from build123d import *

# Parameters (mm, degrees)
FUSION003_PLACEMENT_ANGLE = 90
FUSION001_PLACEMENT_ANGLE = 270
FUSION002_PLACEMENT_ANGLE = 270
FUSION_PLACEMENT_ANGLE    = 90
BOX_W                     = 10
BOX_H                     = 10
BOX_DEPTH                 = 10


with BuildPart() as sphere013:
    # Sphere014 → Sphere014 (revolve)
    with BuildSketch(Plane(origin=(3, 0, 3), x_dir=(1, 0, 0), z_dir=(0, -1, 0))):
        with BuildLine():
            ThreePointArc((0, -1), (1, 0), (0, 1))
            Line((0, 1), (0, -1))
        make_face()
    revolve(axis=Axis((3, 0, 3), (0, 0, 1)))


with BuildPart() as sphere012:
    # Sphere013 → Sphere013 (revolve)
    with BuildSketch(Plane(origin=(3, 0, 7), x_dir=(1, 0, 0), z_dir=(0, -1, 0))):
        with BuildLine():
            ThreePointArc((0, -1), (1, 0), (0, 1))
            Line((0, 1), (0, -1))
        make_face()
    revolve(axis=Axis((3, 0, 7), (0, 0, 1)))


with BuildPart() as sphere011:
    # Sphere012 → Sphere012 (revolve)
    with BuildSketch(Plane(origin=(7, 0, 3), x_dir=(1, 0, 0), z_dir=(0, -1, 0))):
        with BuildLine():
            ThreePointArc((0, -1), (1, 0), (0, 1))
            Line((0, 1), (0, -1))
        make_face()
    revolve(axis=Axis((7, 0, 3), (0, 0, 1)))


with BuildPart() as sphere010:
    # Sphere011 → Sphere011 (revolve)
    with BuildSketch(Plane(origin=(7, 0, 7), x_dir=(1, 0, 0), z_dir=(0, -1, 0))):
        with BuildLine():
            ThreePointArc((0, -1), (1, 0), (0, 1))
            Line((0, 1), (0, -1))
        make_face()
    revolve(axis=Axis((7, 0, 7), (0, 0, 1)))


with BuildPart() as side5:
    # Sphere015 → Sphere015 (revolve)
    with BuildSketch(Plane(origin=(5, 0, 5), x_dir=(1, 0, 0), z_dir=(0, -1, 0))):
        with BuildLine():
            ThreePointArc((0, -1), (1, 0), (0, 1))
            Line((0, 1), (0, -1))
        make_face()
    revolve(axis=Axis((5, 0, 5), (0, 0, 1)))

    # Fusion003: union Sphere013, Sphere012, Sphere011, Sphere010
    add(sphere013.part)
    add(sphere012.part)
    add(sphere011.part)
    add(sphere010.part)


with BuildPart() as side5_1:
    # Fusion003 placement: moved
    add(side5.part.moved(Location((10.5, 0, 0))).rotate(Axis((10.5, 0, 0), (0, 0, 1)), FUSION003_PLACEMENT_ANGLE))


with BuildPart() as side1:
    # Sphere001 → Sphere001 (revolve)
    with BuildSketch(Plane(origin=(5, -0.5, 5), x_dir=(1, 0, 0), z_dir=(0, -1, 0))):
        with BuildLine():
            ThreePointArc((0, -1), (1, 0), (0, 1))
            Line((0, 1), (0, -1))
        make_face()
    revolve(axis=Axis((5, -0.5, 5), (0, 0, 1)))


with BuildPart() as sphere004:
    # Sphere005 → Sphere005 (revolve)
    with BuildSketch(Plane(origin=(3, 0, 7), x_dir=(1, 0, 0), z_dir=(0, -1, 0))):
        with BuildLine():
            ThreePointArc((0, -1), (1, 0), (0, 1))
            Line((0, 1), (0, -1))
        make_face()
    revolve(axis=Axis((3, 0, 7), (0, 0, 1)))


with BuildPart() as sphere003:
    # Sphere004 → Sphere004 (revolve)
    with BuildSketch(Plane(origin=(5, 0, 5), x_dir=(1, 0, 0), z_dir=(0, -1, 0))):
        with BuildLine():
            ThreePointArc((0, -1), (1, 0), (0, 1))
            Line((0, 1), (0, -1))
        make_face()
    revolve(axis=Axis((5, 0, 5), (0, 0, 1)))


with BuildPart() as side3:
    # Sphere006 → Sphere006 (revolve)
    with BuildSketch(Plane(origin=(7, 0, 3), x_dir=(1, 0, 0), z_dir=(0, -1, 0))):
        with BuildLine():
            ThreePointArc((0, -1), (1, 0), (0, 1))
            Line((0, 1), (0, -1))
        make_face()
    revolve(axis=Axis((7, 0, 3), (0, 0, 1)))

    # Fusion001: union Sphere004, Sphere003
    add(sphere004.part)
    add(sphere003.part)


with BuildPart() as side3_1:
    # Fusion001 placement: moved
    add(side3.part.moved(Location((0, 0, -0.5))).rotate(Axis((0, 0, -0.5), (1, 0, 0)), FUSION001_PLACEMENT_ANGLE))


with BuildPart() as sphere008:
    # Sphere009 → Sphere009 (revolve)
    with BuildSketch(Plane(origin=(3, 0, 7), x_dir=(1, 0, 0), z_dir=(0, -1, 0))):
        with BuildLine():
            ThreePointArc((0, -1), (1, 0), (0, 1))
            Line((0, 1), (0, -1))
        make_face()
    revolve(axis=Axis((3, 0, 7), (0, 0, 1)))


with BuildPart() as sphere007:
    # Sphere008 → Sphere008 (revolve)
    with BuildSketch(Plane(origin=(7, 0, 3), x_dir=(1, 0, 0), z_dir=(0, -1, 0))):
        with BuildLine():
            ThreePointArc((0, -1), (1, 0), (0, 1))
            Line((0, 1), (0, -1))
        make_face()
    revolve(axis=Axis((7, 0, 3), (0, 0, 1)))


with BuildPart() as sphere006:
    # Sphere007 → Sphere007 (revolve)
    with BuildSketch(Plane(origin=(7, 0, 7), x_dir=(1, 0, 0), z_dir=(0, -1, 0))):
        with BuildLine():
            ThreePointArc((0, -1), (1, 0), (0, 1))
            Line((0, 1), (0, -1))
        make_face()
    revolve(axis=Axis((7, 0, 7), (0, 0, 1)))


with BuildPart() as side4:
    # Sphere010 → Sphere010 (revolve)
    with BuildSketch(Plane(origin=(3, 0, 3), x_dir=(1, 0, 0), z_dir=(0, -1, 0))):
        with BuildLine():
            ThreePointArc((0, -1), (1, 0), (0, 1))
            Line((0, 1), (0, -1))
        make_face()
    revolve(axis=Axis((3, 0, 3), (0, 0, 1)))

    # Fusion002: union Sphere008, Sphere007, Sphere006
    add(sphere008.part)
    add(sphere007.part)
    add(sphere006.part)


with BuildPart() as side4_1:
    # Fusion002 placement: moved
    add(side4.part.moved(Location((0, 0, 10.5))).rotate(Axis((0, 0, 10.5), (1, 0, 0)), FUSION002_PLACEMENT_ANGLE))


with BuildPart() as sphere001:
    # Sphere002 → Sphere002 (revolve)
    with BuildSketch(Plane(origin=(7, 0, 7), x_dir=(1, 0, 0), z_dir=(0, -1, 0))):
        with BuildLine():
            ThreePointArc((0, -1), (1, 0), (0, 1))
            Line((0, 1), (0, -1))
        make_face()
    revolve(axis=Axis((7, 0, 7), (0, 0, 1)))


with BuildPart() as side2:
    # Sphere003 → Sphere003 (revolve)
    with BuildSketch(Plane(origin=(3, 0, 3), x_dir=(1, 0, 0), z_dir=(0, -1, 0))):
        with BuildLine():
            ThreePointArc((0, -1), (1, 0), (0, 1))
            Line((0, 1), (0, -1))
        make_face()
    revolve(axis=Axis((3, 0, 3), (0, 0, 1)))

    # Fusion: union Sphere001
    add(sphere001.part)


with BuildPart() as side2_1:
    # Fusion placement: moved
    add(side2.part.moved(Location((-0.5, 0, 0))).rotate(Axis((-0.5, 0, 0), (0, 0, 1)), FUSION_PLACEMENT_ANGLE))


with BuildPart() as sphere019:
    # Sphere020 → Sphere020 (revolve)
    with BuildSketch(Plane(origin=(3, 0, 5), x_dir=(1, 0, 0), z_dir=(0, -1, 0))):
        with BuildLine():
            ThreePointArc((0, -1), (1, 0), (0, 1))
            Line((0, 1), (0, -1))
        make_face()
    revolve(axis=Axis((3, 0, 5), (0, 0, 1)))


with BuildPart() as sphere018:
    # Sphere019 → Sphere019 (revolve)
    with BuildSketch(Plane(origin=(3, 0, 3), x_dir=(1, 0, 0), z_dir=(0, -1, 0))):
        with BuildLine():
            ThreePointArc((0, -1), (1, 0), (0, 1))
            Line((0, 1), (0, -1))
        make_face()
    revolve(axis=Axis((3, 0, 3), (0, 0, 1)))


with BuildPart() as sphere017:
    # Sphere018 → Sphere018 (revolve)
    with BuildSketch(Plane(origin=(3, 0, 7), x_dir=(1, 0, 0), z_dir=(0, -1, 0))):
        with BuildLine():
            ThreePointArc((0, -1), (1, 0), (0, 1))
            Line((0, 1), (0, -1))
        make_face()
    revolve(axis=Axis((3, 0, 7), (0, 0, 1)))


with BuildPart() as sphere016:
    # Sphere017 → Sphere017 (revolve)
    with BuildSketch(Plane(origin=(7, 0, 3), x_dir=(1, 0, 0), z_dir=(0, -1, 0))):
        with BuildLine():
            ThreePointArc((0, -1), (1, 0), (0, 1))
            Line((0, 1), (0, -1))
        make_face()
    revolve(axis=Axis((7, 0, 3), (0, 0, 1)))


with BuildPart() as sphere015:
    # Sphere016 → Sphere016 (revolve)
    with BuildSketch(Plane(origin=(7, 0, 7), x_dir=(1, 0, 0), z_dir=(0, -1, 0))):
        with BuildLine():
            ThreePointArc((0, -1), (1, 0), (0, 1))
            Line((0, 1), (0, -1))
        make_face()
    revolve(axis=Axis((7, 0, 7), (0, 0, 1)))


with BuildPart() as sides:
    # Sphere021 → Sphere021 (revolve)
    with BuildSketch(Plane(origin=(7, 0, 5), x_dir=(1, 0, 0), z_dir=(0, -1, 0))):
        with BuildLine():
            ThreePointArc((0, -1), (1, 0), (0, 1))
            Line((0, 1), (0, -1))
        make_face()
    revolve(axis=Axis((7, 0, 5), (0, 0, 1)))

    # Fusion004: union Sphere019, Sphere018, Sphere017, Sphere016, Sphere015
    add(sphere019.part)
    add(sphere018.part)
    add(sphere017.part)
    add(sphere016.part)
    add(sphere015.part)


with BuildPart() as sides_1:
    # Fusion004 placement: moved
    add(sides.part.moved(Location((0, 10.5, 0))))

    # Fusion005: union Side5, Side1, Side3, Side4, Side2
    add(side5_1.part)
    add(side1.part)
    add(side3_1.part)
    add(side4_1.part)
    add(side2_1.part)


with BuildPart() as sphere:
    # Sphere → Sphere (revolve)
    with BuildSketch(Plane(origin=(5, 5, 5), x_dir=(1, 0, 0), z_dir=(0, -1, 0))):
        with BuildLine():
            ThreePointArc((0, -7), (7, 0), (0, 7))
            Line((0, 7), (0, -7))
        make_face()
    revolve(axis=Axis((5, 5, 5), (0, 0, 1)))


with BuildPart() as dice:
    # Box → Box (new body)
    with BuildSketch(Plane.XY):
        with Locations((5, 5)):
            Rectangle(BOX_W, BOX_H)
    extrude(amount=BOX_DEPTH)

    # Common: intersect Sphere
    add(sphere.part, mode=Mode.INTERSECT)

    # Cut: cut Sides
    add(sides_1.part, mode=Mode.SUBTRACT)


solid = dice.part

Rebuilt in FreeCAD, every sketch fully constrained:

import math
import FreeCAD as App
import Part
import Sketcher

V = App.Vector
Q = App.Units.Quantity

doc = App.newDocument("Part")
body = doc.addObject("PartDesign::Body", "Body")

sketch1 = body.newObject("Sketcher::SketchObject", "Sketch")
sketch1.AttachmentSupport = (doc.getObject("XZ_Plane"), [""])
sketch1.MapMode = "FlatFace"
sketch1.addGeometry([
    Part.ArcOfCircle(Part.Circle(V(3, 3, 0), V(0, 0, 1), 1), math.radians(-90), math.radians(90)),
    Part.LineSegment(V(3, 4, 0), V(3, 2, 0)),
], False)
sketch1.addGeometry(Part.LineSegment(V(3, 2, 0), V(3, 4, 0)), True)
sketch1.addConstraint([
    Sketcher.Constraint("Coincident", 0, 1, 1, 2),
    Sketcher.Constraint("Coincident", 1, 1, 0, 2),
    Sketcher.Constraint("Vertical", 1),
    Sketcher.Constraint("Vertical", 2),
    Sketcher.Constraint("Coincident", 2, 1, 0, 1),
    Sketcher.Constraint("Equal", 1, 2),
    Sketcher.Constraint("Radius", 0, Q("1 mm")),
    Sketcher.Constraint("DistanceX", -1, 1, 0, 3, Q("3 mm")),
    Sketcher.Constraint("DistanceY", -1, 1, 0, 3, Q("3 mm")),
    Sketcher.Constraint("DistanceX", -1, 1, 0, 1, Q("3 mm")),
])
revolution = body.newObject("PartDesign::Revolution", "Revolution")
revolution.Profile = sketch1
revolution.ReferenceAxis = (sketch1, ["Axis0"])
revolution.Angle = 360
body2 = doc.addObject("PartDesign::Body", "Body001")

sketch2 = body2.newObject("Sketcher::SketchObject", "Sketch001")
sketch2.AttachmentSupport = (doc.getObject("XZ_Plane001"), [""])
sketch2.MapMode = "FlatFace"
sketch2.addGeometry([
    Part.ArcOfCircle(Part.Circle(V(3, 7, 0), V(0, 0, 1), 1), math.radians(-90), math.radians(90)),
    Part.LineSegment(V(3, 8, 0), V(3, 6, 0)),
], False)
sketch2.addGeometry(Part.LineSegment(V(3, 6, 0), V(3, 8, 0)), True)
sketch2.addConstraint([
    Sketcher.Constraint("Coincident", 0, 1, 1, 2),
    Sketcher.Constraint("Coincident", 1, 1, 0, 2),
    Sketcher.Constraint("Vertical", 1),
    Sketcher.Constraint("Vertical", 2),
    Sketcher.Constraint("Coincident", 2, 1, 0, 1),
    Sketcher.Constraint("Equal", 1, 2),
    Sketcher.Constraint("Radius", 0, Q("1 mm")),
    Sketcher.Constraint("DistanceX", -1, 1, 0, 3, Q("3 mm")),
    Sketcher.Constraint("DistanceY", -1, 1, 0, 3, Q("7 mm")),
    Sketcher.Constraint("DistanceX", -1, 1, 0, 1, Q("3 mm")),
])
revolution2 = body2.newObject("PartDesign::Revolution", "Revolution001")
revolution2.Profile = sketch2
revolution2.ReferenceAxis = (sketch2, ["Axis0"])
revolution2.Angle = 360
body3 = doc.addObject("PartDesign::Body", "Body002")

sketch3 = body3.newObject("Sketcher::SketchObject", "Sketch002")
sketch3.AttachmentSupport = (doc.getObject("XZ_Plane002"), [""])
sketch3.MapMode = "FlatFace"
sketch3.addGeometry([
    Part.ArcOfCircle(Part.Circle(V(7, 3, 0), V(0, 0, 1), 1), math.radians(-90), math.radians(90)),
    Part.LineSegment(V(7, 4, 0), V(7, 2, 0)),
], False)
sketch3.addGeometry(Part.LineSegment(V(7, 2, 0), V(7, 4, 0)), True)
sketch3.addConstraint([
    Sketcher.Constraint("Coincident", 0, 1, 1, 2),
    Sketcher.Constraint("Coincident", 1, 1, 0, 2),
    Sketcher.Constraint("Vertical", 1),
    Sketcher.Constraint("Vertical", 2),
    Sketcher.Constraint("Coincident", 2, 1, 0, 1),
    Sketcher.Constraint("Equal", 1, 2),
    Sketcher.Constraint("Radius", 0, Q("1 mm")),
    Sketcher.Constraint("DistanceX", -1, 1, 0, 3, Q("7 mm")),
    Sketcher.Constraint("DistanceY", -1, 1, 0, 3, Q("3 mm")),
    Sketcher.Constraint("DistanceX", -1, 1, 0, 1, Q("7 mm")),
])
revolution3 = body3.newObject("PartDesign::Revolution", "Revolution002")
revolution3.Profile = sketch3
revolution3.ReferenceAxis = (sketch3, ["Axis0"])
revolution3.Angle = 360
body4 = doc.addObject("PartDesign::Body", "Body003")

sketch4 = body4.newObject("Sketcher::SketchObject", "Sketch003")
sketch4.AttachmentSupport = (doc.getObject("XZ_Plane003"), [""])
sketch4.MapMode = "FlatFace"
sketch4.addGeometry([
    Part.ArcOfCircle(Part.Circle(V(7, 7, 0), V(0, 0, 1), 1), math.radians(-90), math.radians(90)),
    Part.LineSegment(V(7, 8, 0), V(7, 6, 0)),
], False)
sketch4.addGeometry(Part.LineSegment(V(7, 6, 0), V(7, 8, 0)), True)
sketch4.addConstraint([
    Sketcher.Constraint("Coincident", 0, 1, 1, 2),
    Sketcher.Constraint("Coincident", 1, 1, 0, 2),
    Sketcher.Constraint("Vertical", 1),
    Sketcher.Constraint("Vertical", 2),
    Sketcher.Constraint("Coincident", 2, 1, 0, 1),
    Sketcher.Constraint("Equal", 1, 2),
    Sketcher.Constraint("Radius", 0, Q("1 mm")),
    Sketcher.Constraint("DistanceX", -1, 1, 0, 3, Q("7 mm")),
    Sketcher.Constraint("DistanceY", -1, 1, 0, 3, Q("7 mm")),
    Sketcher.Constraint("DistanceX", -1, 1, 0, 1, Q("7 mm")),
])
revolution4 = body4.newObject("PartDesign::Revolution", "Revolution003")
revolution4.Profile = sketch4
revolution4.ReferenceAxis = (sketch4, ["Axis0"])
revolution4.Angle = 360
body5 = doc.addObject("PartDesign::Body", "Body004")
body5.AllowCompound = True

sketch5 = body5.newObject("Sketcher::SketchObject", "Sketch004")
sketch5.AttachmentSupport = (doc.getObject("XZ_Plane004"), [""])
sketch5.MapMode = "FlatFace"
sketch5.addGeometry([
    Part.ArcOfCircle(Part.Circle(V(5, 5, 0), V(0, 0, 1), 1), math.radians(-90), math.radians(90)),
    Part.LineSegment(V(5, 6, 0), V(5, 4, 0)),
], False)
sketch5.addGeometry(Part.LineSegment(V(5, 4, 0), V(5, 6, 0)), True)
sketch5.addConstraint([
    Sketcher.Constraint("Coincident", 0, 1, 1, 2),
    Sketcher.Constraint("Coincident", 1, 1, 0, 2),
    Sketcher.Constraint("Vertical", 1),
    Sketcher.Constraint("Vertical", 2),
    Sketcher.Constraint("Coincident", 2, 1, 0, 1),
    Sketcher.Constraint("Equal", 1, 2),
    Sketcher.Constraint("Radius", 0, Q("1 mm")),
    Sketcher.Constraint("DistanceX", -1, 1, 0, 3, Q("5 mm")),
    Sketcher.Constraint("DistanceY", -1, 1, 0, 3, Q("5 mm")),
    Sketcher.Constraint("DistanceX", -1, 1, 0, 1, Q("5 mm")),
])
revolution5 = body5.newObject("PartDesign::Revolution", "Revolution004")
revolution5.Profile = sketch5
revolution5.ReferenceAxis = (sketch5, ["Axis0"])
revolution5.Angle = 360
doc.recompute()

boolean = body5.newObject("PartDesign::Boolean", "Boolean")
boolean.Type = "Fuse"
boolean.addObjects([body])
doc.recompute()

boolean2 = body5.newObject("PartDesign::Boolean", "Boolean001")
boolean2.Type = "Fuse"
boolean2.addObjects([body2])
doc.recompute()

boolean3 = body5.newObject("PartDesign::Boolean", "Boolean002")
boolean3.Type = "Fuse"
boolean3.addObjects([body3])
doc.recompute()

boolean4 = body5.newObject("PartDesign::Boolean", "Boolean003")
boolean4.Type = "Fuse"
boolean4.addObjects([body4])
body6 = doc.addObject("PartDesign::Body", "Body005")
body6.AllowCompound = True
doc.recompute()

body5.Placement = App.Placement(V(10.5, 0, 0), App.Rotation(V(0, 0, 1), 90))
boolean5 = body6.newObject("PartDesign::Boolean", "Boolean004")
boolean5.Type = "Fuse"
boolean5.addObjects([body5])
body7 = doc.addObject("PartDesign::Body", "Body006")

sketch6 = body7.newObject("Sketcher::SketchObject", "Sketch005")
sketch6.AttachmentSupport = (doc.getObject("XZ_Plane006"), [""])
sketch6.MapMode = "FlatFace"
sketch6.AttachmentOffset = App.Placement(V(0, 0, 0.5), App.Rotation())
sketch6.addGeometry([
    Part.ArcOfCircle(Part.Circle(V(5, 5, 0), V(0, 0, 1), 1), math.radians(-90), math.radians(90)),
    Part.LineSegment(V(5, 6, 0), V(5, 4, 0)),
], False)
sketch6.addGeometry(Part.LineSegment(V(5, 4, 0), V(5, 6, 0)), True)
sketch6.addConstraint([
    Sketcher.Constraint("Coincident", 0, 1, 1, 2),
    Sketcher.Constraint("Coincident", 1, 1, 0, 2),
    Sketcher.Constraint("Vertical", 1),
    Sketcher.Constraint("Vertical", 2),
    Sketcher.Constraint("Coincident", 2, 1, 0, 1),
    Sketcher.Constraint("Equal", 1, 2),
    Sketcher.Constraint("Radius", 0, Q("1 mm")),
    Sketcher.Constraint("DistanceX", -1, 1, 0, 3, Q("5 mm")),
    Sketcher.Constraint("DistanceY", -1, 1, 0, 3, Q("5 mm")),
    Sketcher.Constraint("DistanceX", -1, 1, 0, 1, Q("5 mm")),
])
revolution6 = body7.newObject("PartDesign::Revolution", "Revolution005")
revolution6.Profile = sketch6
revolution6.ReferenceAxis = (sketch6, ["Axis0"])
revolution6.Angle = 360
body8 = doc.addObject("PartDesign::Body", "Body007")

sketch7 = body8.newObject("Sketcher::SketchObject", "Sketch006")
sketch7.AttachmentSupport = (doc.getObject("XZ_Plane007"), [""])
sketch7.MapMode = "FlatFace"
sketch7.addGeometry([
    Part.ArcOfCircle(Part.Circle(V(3, 7, 0), V(0, 0, 1), 1), math.radians(-90), math.radians(90)),
    Part.LineSegment(V(3, 8, 0), V(3, 6, 0)),
], False)
sketch7.addGeometry(Part.LineSegment(V(3, 6, 0), V(3, 8, 0)), True)
sketch7.addConstraint([
    Sketcher.Constraint("Coincident", 0, 1, 1, 2),
    Sketcher.Constraint("Coincident", 1, 1, 0, 2),
    Sketcher.Constraint("Vertical", 1),
    Sketcher.Constraint("Vertical", 2),
    Sketcher.Constraint("Coincident", 2, 1, 0, 1),
    Sketcher.Constraint("Equal", 1, 2),
    Sketcher.Constraint("Radius", 0, Q("1 mm")),
    Sketcher.Constraint("DistanceX", -1, 1, 0, 3, Q("3 mm")),
    Sketcher.Constraint("DistanceY", -1, 1, 0, 3, Q("7 mm")),
    Sketcher.Constraint("DistanceX", -1, 1, 0, 1, Q("3 mm")),
])
revolution7 = body8.newObject("PartDesign::Revolution", "Revolution006")
revolution7.Profile = sketch7
revolution7.ReferenceAxis = (sketch7, ["Axis0"])
revolution7.Angle = 360
body9 = doc.addObject("PartDesign::Body", "Body008")

sketch8 = body9.newObject("Sketcher::SketchObject", "Sketch007")
sketch8.AttachmentSupport = (doc.getObject("XZ_Plane008"), [""])
sketch8.MapMode = "FlatFace"
sketch8.addGeometry([
    Part.ArcOfCircle(Part.Circle(V(5, 5, 0), V(0, 0, 1), 1), math.radians(-90), math.radians(90)),
    Part.LineSegment(V(5, 6, 0), V(5, 4, 0)),
], False)
sketch8.addGeometry(Part.LineSegment(V(5, 4, 0), V(5, 6, 0)), True)
sketch8.addConstraint([
    Sketcher.Constraint("Coincident", 0, 1, 1, 2),
    Sketcher.Constraint("Coincident", 1, 1, 0, 2),
    Sketcher.Constraint("Vertical", 1),
    Sketcher.Constraint("Vertical", 2),
    Sketcher.Constraint("Coincident", 2, 1, 0, 1),
    Sketcher.Constraint("Equal", 1, 2),
    Sketcher.Constraint("Radius", 0, Q("1 mm")),
    Sketcher.Constraint("DistanceX", -1, 1, 0, 3, Q("5 mm")),
    Sketcher.Constraint("DistanceY", -1, 1, 0, 3, Q("5 mm")),
    Sketcher.Constraint("DistanceX", -1, 1, 0, 1, Q("5 mm")),
])
revolution8 = body9.newObject("PartDesign::Revolution", "Revolution007")
revolution8.Profile = sketch8
revolution8.ReferenceAxis = (sketch8, ["Axis0"])
revolution8.Angle = 360
body10 = doc.addObject("PartDesign::Body", "Body009")
body10.AllowCompound = True

sketch9 = body10.newObject("Sketcher::SketchObject", "Sketch008")
sketch9.AttachmentSupport = (doc.getObject("XZ_Plane009"), [""])
sketch9.MapMode = "FlatFace"
sketch9.addGeometry([
    Part.ArcOfCircle(Part.Circle(V(7, 3, 0), V(0, 0, 1), 1), math.radians(-90), math.radians(90)),
    Part.LineSegment(V(7, 4, 0), V(7, 2, 0)),
], False)
sketch9.addGeometry(Part.LineSegment(V(7, 2, 0), V(7, 4, 0)), True)
sketch9.addConstraint([
    Sketcher.Constraint("Coincident", 0, 1, 1, 2),
    Sketcher.Constraint("Coincident", 1, 1, 0, 2),
    Sketcher.Constraint("Vertical", 1),
    Sketcher.Constraint("Vertical", 2),
    Sketcher.Constraint("Coincident", 2, 1, 0, 1),
    Sketcher.Constraint("Equal", 1, 2),
    Sketcher.Constraint("Radius", 0, Q("1 mm")),
    Sketcher.Constraint("DistanceX", -1, 1, 0, 3, Q("7 mm")),
    Sketcher.Constraint("DistanceY", -1, 1, 0, 3, Q("3 mm")),
    Sketcher.Constraint("DistanceX", -1, 1, 0, 1, Q("7 mm")),
])
revolution9 = body10.newObject("PartDesign::Revolution", "Revolution008")
revolution9.Profile = sketch9
revolution9.ReferenceAxis = (sketch9, ["Axis0"])
revolution9.Angle = 360
doc.recompute()

boolean6 = body10.newObject("PartDesign::Boolean", "Boolean005")
boolean6.Type = "Fuse"
boolean6.addObjects([body8])
doc.recompute()

boolean7 = body10.newObject("PartDesign::Boolean", "Boolean006")
boolean7.Type = "Fuse"
boolean7.addObjects([body9])
body11 = doc.addObject("PartDesign::Body", "Body010")
body11.AllowCompound = True
doc.recompute()

body10.Placement = App.Placement(V(0, 0, -0.5), App.Rotation(V(1, 0, 0), 270))
boolean8 = body11.newObject("PartDesign::Boolean", "Boolean007")
boolean8.Type = "Fuse"
boolean8.addObjects([body10])
body12 = doc.addObject("PartDesign::Body", "Body011")

sketch10 = body12.newObject("Sketcher::SketchObject", "Sketch009")
sketch10.AttachmentSupport = (doc.getObject("XZ_Plane011"), [""])
sketch10.MapMode = "FlatFace"
sketch10.addGeometry([
    Part.ArcOfCircle(Part.Circle(V(3, 7, 0), V(0, 0, 1), 1), math.radians(-90), math.radians(90)),
    Part.LineSegment(V(3, 8, 0), V(3, 6, 0)),
], False)
sketch10.addGeometry(Part.LineSegment(V(3, 6, 0), V(3, 8, 0)), True)
sketch10.addConstraint([
    Sketcher.Constraint("Coincident", 0, 1, 1, 2),
    Sketcher.Constraint("Coincident", 1, 1, 0, 2),
    Sketcher.Constraint("Vertical", 1),
    Sketcher.Constraint("Vertical", 2),
    Sketcher.Constraint("Coincident", 2, 1, 0, 1),
    Sketcher.Constraint("Equal", 1, 2),
    Sketcher.Constraint("Radius", 0, Q("1 mm")),
    Sketcher.Constraint("DistanceX", -1, 1, 0, 3, Q("3 mm")),
    Sketcher.Constraint("DistanceY", -1, 1, 0, 3, Q("7 mm")),
    Sketcher.Constraint("DistanceX", -1, 1, 0, 1, Q("3 mm")),
])
revolution10 = body12.newObject("PartDesign::Revolution", "Revolution009")
revolution10.Profile = sketch10
revolution10.ReferenceAxis = (sketch10, ["Axis0"])
revolution10.Angle = 360
body13 = doc.addObject("PartDesign::Body", "Body012")

sketch11 = body13.newObject("Sketcher::SketchObject", "Sketch010")
sketch11.AttachmentSupport = (doc.getObject("XZ_Plane012"), [""])
sketch11.MapMode = "FlatFace"
sketch11.addGeometry([
    Part.ArcOfCircle(Part.Circle(V(7, 3, 0), V(0, 0, 1), 1), math.radians(-90), math.radians(90)),
    Part.LineSegment(V(7, 4, 0), V(7, 2, 0)),
], False)
sketch11.addGeometry(Part.LineSegment(V(7, 2, 0), V(7, 4, 0)), True)
sketch11.addConstraint([
    Sketcher.Constraint("Coincident", 0, 1, 1, 2),
    Sketcher.Constraint("Coincident", 1, 1, 0, 2),
    Sketcher.Constraint("Vertical", 1),
    Sketcher.Constraint("Vertical", 2),
    Sketcher.Constraint("Coincident", 2, 1, 0, 1),
    Sketcher.Constraint("Equal", 1, 2),
    Sketcher.Constraint("Radius", 0, Q("1 mm")),
    Sketcher.Constraint("DistanceX", -1, 1, 0, 3, Q("7 mm")),
    Sketcher.Constraint("DistanceY", -1, 1, 0, 3, Q("3 mm")),
    Sketcher.Constraint("DistanceX", -1, 1, 0, 1, Q("7 mm")),
])
revolution11 = body13.newObject("PartDesign::Revolution", "Revolution010")
revolution11.Profile = sketch11
revolution11.ReferenceAxis = (sketch11, ["Axis0"])
revolution11.Angle = 360
body14 = doc.addObject("PartDesign::Body", "Body013")

sketch12 = body14.newObject("Sketcher::SketchObject", "Sketch011")
sketch12.AttachmentSupport = (doc.getObject("XZ_Plane013"), [""])
sketch12.MapMode = "FlatFace"
sketch12.addGeometry([
    Part.ArcOfCircle(Part.Circle(V(7, 7, 0), V(0, 0, 1), 1), math.radians(-90), math.radians(90)),
    Part.LineSegment(V(7, 8, 0), V(7, 6, 0)),
], False)
sketch12.addGeometry(Part.LineSegment(V(7, 6, 0), V(7, 8, 0)), True)
sketch12.addConstraint([
    Sketcher.Constraint("Coincident", 0, 1, 1, 2),
    Sketcher.Constraint("Coincident", 1, 1, 0, 2),
    Sketcher.Constraint("Vertical", 1),
    Sketcher.Constraint("Vertical", 2),
    Sketcher.Constraint("Coincident", 2, 1, 0, 1),
    Sketcher.Constraint("Equal", 1, 2),
    Sketcher.Constraint("Radius", 0, Q("1 mm")),
    Sketcher.Constraint("DistanceX", -1, 1, 0, 3, Q("7 mm")),
    Sketcher.Constraint("DistanceY", -1, 1, 0, 3, Q("7 mm")),
    Sketcher.Constraint("DistanceX", -1, 1, 0, 1, Q("7 mm")),
])
revolution12 = body14.newObject("PartDesign::Revolution", "Revolution011")
revolution12.Profile = sketch12
revolution12.ReferenceAxis = (sketch12, ["Axis0"])
revolution12.Angle = 360
body15 = doc.addObject("PartDesign::Body", "Body014")
body15.AllowCompound = True

sketch13 = body15.newObject("Sketcher::SketchObject", "Sketch012")
sketch13.AttachmentSupport = (doc.getObject("XZ_Plane014"), [""])
sketch13.MapMode = "FlatFace"
sketch13.addGeometry([
    Part.ArcOfCircle(Part.Circle(V(3, 3, 0), V(0, 0, 1), 1), math.radians(-90), math.radians(90)),
    Part.LineSegment(V(3, 4, 0), V(3, 2, 0)),
], False)
sketch13.addGeometry(Part.LineSegment(V(3, 2, 0), V(3, 4, 0)), True)
sketch13.addConstraint([
    Sketcher.Constraint("Coincident", 0, 1, 1, 2),
    Sketcher.Constraint("Coincident", 1, 1, 0, 2),
    Sketcher.Constraint("Vertical", 1),
    Sketcher.Constraint("Vertical", 2),
    Sketcher.Constraint("Coincident", 2, 1, 0, 1),
    Sketcher.Constraint("Equal", 1, 2),
    Sketcher.Constraint("Radius", 0, Q("1 mm")),
    Sketcher.Constraint("DistanceX", -1, 1, 0, 3, Q("3 mm")),
    Sketcher.Constraint("DistanceY", -1, 1, 0, 3, Q("3 mm")),
    Sketcher.Constraint("DistanceX", -1, 1, 0, 1, Q("3 mm")),
])
revolution13 = body15.newObject("PartDesign::Revolution", "Revolution012")
revolution13.Profile = sketch13
revolution13.ReferenceAxis = (sketch13, ["Axis0"])
revolution13.Angle = 360
doc.recompute()

boolean9 = body15.newObject("PartDesign::Boolean", "Boolean008")
boolean9.Type = "Fuse"
boolean9.addObjects([body12])
doc.recompute()

boolean10 = body15.newObject("PartDesign::Boolean", "Boolean009")
boolean10.Type = "Fuse"
boolean10.addObjects([body13])
doc.recompute()

boolean11 = body15.newObject("PartDesign::Boolean", "Boolean010")
boolean11.Type = "Fuse"
boolean11.addObjects([body14])
body16 = doc.addObject("PartDesign::Body", "Body015")
body16.AllowCompound = True
doc.recompute()

body15.Placement = App.Placement(V(0, 0, 10.5), App.Rotation(V(1, 0, 0), 270))
boolean12 = body16.newObject("PartDesign::Boolean", "Boolean011")
boolean12.Type = "Fuse"
boolean12.addObjects([body15])
body17 = doc.addObject("PartDesign::Body", "Body016")

sketch14 = body17.newObject("Sketcher::SketchObject", "Sketch013")
sketch14.AttachmentSupport = (doc.getObject("XZ_Plane016"), [""])
sketch14.MapMode = "FlatFace"
sketch14.addGeometry([
    Part.ArcOfCircle(Part.Circle(V(7, 7, 0), V(0, 0, 1), 1), math.radians(-90), math.radians(90)),
    Part.LineSegment(V(7, 8, 0), V(7, 6, 0)),
], False)
sketch14.addGeometry(Part.LineSegment(V(7, 6, 0), V(7, 8, 0)), True)
sketch14.addConstraint([
    Sketcher.Constraint("Coincident", 0, 1, 1, 2),
    Sketcher.Constraint("Coincident", 1, 1, 0, 2),
    Sketcher.Constraint("Vertical", 1),
    Sketcher.Constraint("Vertical", 2),
    Sketcher.Constraint("Coincident", 2, 1, 0, 1),
    Sketcher.Constraint("Equal", 1, 2),
    Sketcher.Constraint("Radius", 0, Q("1 mm")),
    Sketcher.Constraint("DistanceX", -1, 1, 0, 3, Q("7 mm")),
    Sketcher.Constraint("DistanceY", -1, 1, 0, 3, Q("7 mm")),
    Sketcher.Constraint("DistanceX", -1, 1, 0, 1, Q("7 mm")),
])
revolution14 = body17.newObject("PartDesign::Revolution", "Revolution013")
revolution14.Profile = sketch14
revolution14.ReferenceAxis = (sketch14, ["Axis0"])
revolution14.Angle = 360
body18 = doc.addObject("PartDesign::Body", "Body017")
body18.AllowCompound = True

sketch15 = body18.newObject("Sketcher::SketchObject", "Sketch014")
sketch15.AttachmentSupport = (doc.getObject("XZ_Plane017"), [""])
sketch15.MapMode = "FlatFace"
sketch15.addGeometry([
    Part.ArcOfCircle(Part.Circle(V(3, 3, 0), V(0, 0, 1), 1), math.radians(-90), math.radians(90)),
    Part.LineSegment(V(3, 4, 0), V(3, 2, 0)),
], False)
sketch15.addGeometry(Part.LineSegment(V(3, 2, 0), V(3, 4, 0)), True)
sketch15.addConstraint([
    Sketcher.Constraint("Coincident", 0, 1, 1, 2),
    Sketcher.Constraint("Coincident", 1, 1, 0, 2),
    Sketcher.Constraint("Vertical", 1),
    Sketcher.Constraint("Vertical", 2),
    Sketcher.Constraint("Coincident", 2, 1, 0, 1),
    Sketcher.Constraint("Equal", 1, 2),
    Sketcher.Constraint("Radius", 0, Q("1 mm")),
    Sketcher.Constraint("DistanceX", -1, 1, 0, 3, Q("3 mm")),
    Sketcher.Constraint("DistanceY", -1, 1, 0, 3, Q("3 mm")),
    Sketcher.Constraint("DistanceX", -1, 1, 0, 1, Q("3 mm")),
])
revolution15 = body18.newObject("PartDesign::Revolution", "Revolution014")
revolution15.Profile = sketch15
revolution15.ReferenceAxis = (sketch15, ["Axis0"])
revolution15.Angle = 360
doc.recompute()

boolean13 = body18.newObject("PartDesign::Boolean", "Boolean012")
boolean13.Type = "Fuse"
boolean13.addObjects([body17])
body19 = doc.addObject("PartDesign::Body", "Body018")
body19.AllowCompound = True
doc.recompute()

body18.Placement = App.Placement(V(-0.5, 0, 0), App.Rotation(V(0, 0, 1), 90))
boolean14 = body19.newObject("PartDesign::Boolean", "Boolean013")
boolean14.Type = "Fuse"
boolean14.addObjects([body18])
body20 = doc.addObject("PartDesign::Body", "Body019")

sketch16 = body20.newObject("Sketcher::SketchObject", "Sketch015")
sketch16.AttachmentSupport = (doc.getObject("XZ_Plane019"), [""])
sketch16.MapMode = "FlatFace"
sketch16.addGeometry([
    Part.ArcOfCircle(Part.Circle(V(3, 5, 0), V(0, 0, 1), 1), math.radians(-90), math.radians(90)),
    Part.LineSegment(V(3, 6, 0), V(3, 4, 0)),
], False)
sketch16.addGeometry(Part.LineSegment(V(3, 4, 0), V(3, 6, 0)), True)
sketch16.addConstraint([
    Sketcher.Constraint("Coincident", 0, 1, 1, 2),
    Sketcher.Constraint("Coincident", 1, 1, 0, 2),
    Sketcher.Constraint("Vertical", 1),
    Sketcher.Constraint("Vertical", 2),
    Sketcher.Constraint("Coincident", 2, 1, 0, 1),
    Sketcher.Constraint("Equal", 1, 2),
    Sketcher.Constraint("Radius", 0, Q("1 mm")),
    Sketcher.Constraint("DistanceX", -1, 1, 0, 3, Q("3 mm")),
    Sketcher.Constraint("DistanceY", -1, 1, 0, 3, Q("5 mm")),
    Sketcher.Constraint("DistanceX", -1, 1, 0, 1, Q("3 mm")),
])
revolution16 = body20.newObject("PartDesign::Revolution", "Revolution015")
revolution16.Profile = sketch16
revolution16.ReferenceAxis = (sketch16, ["Axis0"])
revolution16.Angle = 360
body21 = doc.addObject("PartDesign::Body", "Body020")

sketch17 = body21.newObject("Sketcher::SketchObject", "Sketch016")
sketch17.AttachmentSupport = (doc.getObject("XZ_Plane020"), [""])
sketch17.MapMode = "FlatFace"
sketch17.addGeometry([
    Part.ArcOfCircle(Part.Circle(V(3, 3, 0), V(0, 0, 1), 1), math.radians(-90), math.radians(90)),
    Part.LineSegment(V(3, 4, 0), V(3, 2, 0)),
], False)
sketch17.addGeometry(Part.LineSegment(V(3, 2, 0), V(3, 4, 0)), True)
sketch17.addConstraint([
    Sketcher.Constraint("Coincident", 0, 1, 1, 2),
    Sketcher.Constraint("Coincident", 1, 1, 0, 2),
    Sketcher.Constraint("Vertical", 1),
    Sketcher.Constraint("Vertical", 2),
    Sketcher.Constraint("Coincident", 2, 1, 0, 1),
    Sketcher.Constraint("Equal", 1, 2),
    Sketcher.Constraint("Radius", 0, Q("1 mm")),
    Sketcher.Constraint("DistanceX", -1, 1, 0, 3, Q("3 mm")),
    Sketcher.Constraint("DistanceY", -1, 1, 0, 3, Q("3 mm")),
    Sketcher.Constraint("DistanceX", -1, 1, 0, 1, Q("3 mm")),
])
revolution17 = body21.newObject("PartDesign::Revolution", "Revolution016")
revolution17.Profile = sketch17
revolution17.ReferenceAxis = (sketch17, ["Axis0"])
revolution17.Angle = 360
body22 = doc.addObject("PartDesign::Body", "Body021")

sketch18 = body22.newObject("Sketcher::SketchObject", "Sketch017")
sketch18.AttachmentSupport = (doc.getObject("XZ_Plane021"), [""])
sketch18.MapMode = "FlatFace"
sketch18.addGeometry([
    Part.ArcOfCircle(Part.Circle(V(3, 7, 0), V(0, 0, 1), 1), math.radians(-90), math.radians(90)),
    Part.LineSegment(V(3, 8, 0), V(3, 6, 0)),
], False)
sketch18.addGeometry(Part.LineSegment(V(3, 6, 0), V(3, 8, 0)), True)
sketch18.addConstraint([
    Sketcher.Constraint("Coincident", 0, 1, 1, 2),
    Sketcher.Constraint("Coincident", 1, 1, 0, 2),
    Sketcher.Constraint("Vertical", 1),
    Sketcher.Constraint("Vertical", 2),
    Sketcher.Constraint("Coincident", 2, 1, 0, 1),
    Sketcher.Constraint("Equal", 1, 2),
    Sketcher.Constraint("Radius", 0, Q("1 mm")),
    Sketcher.Constraint("DistanceX", -1, 1, 0, 3, Q("3 mm")),
    Sketcher.Constraint("DistanceY", -1, 1, 0, 3, Q("7 mm")),
    Sketcher.Constraint("DistanceX", -1, 1, 0, 1, Q("3 mm")),
])
revolution18 = body22.newObject("PartDesign::Revolution", "Revolution017")
revolution18.Profile = sketch18
revolution18.ReferenceAxis = (sketch18, ["Axis0"])
revolution18.Angle = 360
body23 = doc.addObject("PartDesign::Body", "Body022")

sketch19 = body23.newObject("Sketcher::SketchObject", "Sketch018")
sketch19.AttachmentSupport = (doc.getObject("XZ_Plane022"), [""])
sketch19.MapMode = "FlatFace"
sketch19.addGeometry([
    Part.ArcOfCircle(Part.Circle(V(7, 3, 0), V(0, 0, 1), 1), math.radians(-90), math.radians(90)),
    Part.LineSegment(V(7, 4, 0), V(7, 2, 0)),
], False)
sketch19.addGeometry(Part.LineSegment(V(7, 2, 0), V(7, 4, 0)), True)
sketch19.addConstraint([
    Sketcher.Constraint("Coincident", 0, 1, 1, 2),
    Sketcher.Constraint("Coincident", 1, 1, 0, 2),
    Sketcher.Constraint("Vertical", 1),
    Sketcher.Constraint("Vertical", 2),
    Sketcher.Constraint("Coincident", 2, 1, 0, 1),
    Sketcher.Constraint("Equal", 1, 2),
    Sketcher.Constraint("Radius", 0, Q("1 mm")),
    Sketcher.Constraint("DistanceX", -1, 1, 0, 3, Q("7 mm")),
    Sketcher.Constraint("DistanceY", -1, 1, 0, 3, Q("3 mm")),
    Sketcher.Constraint("DistanceX", -1, 1, 0, 1, Q("7 mm")),
])
revolution19 = body23.newObject("PartDesign::Revolution", "Revolution018")
revolution19.Profile = sketch19
revolution19.ReferenceAxis = (sketch19, ["Axis0"])
revolution19.Angle = 360
body24 = doc.addObject("PartDesign::Body", "Body023")

sketch20 = body24.newObject("Sketcher::SketchObject", "Sketch019")
sketch20.AttachmentSupport = (doc.getObject("XZ_Plane023"), [""])
sketch20.MapMode = "FlatFace"
sketch20.addGeometry([
    Part.ArcOfCircle(Part.Circle(V(7, 7, 0), V(0, 0, 1), 1), math.radians(-90), math.radians(90)),
    Part.LineSegment(V(7, 8, 0), V(7, 6, 0)),
], False)
sketch20.addGeometry(Part.LineSegment(V(7, 6, 0), V(7, 8, 0)), True)
sketch20.addConstraint([
    Sketcher.Constraint("Coincident", 0, 1, 1, 2),
    Sketcher.Constraint("Coincident", 1, 1, 0, 2),
    Sketcher.Constraint("Vertical", 1),
    Sketcher.Constraint("Vertical", 2),
    Sketcher.Constraint("Coincident", 2, 1, 0, 1),
    Sketcher.Constraint("Equal", 1, 2),
    Sketcher.Constraint("Radius", 0, Q("1 mm")),
    Sketcher.Constraint("DistanceX", -1, 1, 0, 3, Q("7 mm")),
    Sketcher.Constraint("DistanceY", -1, 1, 0, 3, Q("7 mm")),
    Sketcher.Constraint("DistanceX", -1, 1, 0, 1, Q("7 mm")),
])
revolution20 = body24.newObject("PartDesign::Revolution", "Revolution019")
revolution20.Profile = sketch20
revolution20.ReferenceAxis = (sketch20, ["Axis0"])
revolution20.Angle = 360
body25 = doc.addObject("PartDesign::Body", "Body024")
body25.AllowCompound = True

sketch21 = body25.newObject("Sketcher::SketchObject", "Sketch020")
sketch21.AttachmentSupport = (doc.getObject("XZ_Plane024"), [""])
sketch21.MapMode = "FlatFace"
sketch21.addGeometry([
    Part.ArcOfCircle(Part.Circle(V(7, 5, 0), V(0, 0, 1), 1), math.radians(-90), math.radians(90)),
    Part.LineSegment(V(7, 6, 0), V(7, 4, 0)),
], False)
sketch21.addGeometry(Part.LineSegment(V(7, 4, 0), V(7, 6, 0)), True)
sketch21.addConstraint([
    Sketcher.Constraint("Coincident", 0, 1, 1, 2),
    Sketcher.Constraint("Coincident", 1, 1, 0, 2),
    Sketcher.Constraint("Vertical", 1),
    Sketcher.Constraint("Vertical", 2),
    Sketcher.Constraint("Coincident", 2, 1, 0, 1),
    Sketcher.Constraint("Equal", 1, 2),
    Sketcher.Constraint("Radius", 0, Q("1 mm")),
    Sketcher.Constraint("DistanceX", -1, 1, 0, 3, Q("7 mm")),
    Sketcher.Constraint("DistanceY", -1, 1, 0, 3, Q("5 mm")),
    Sketcher.Constraint("DistanceX", -1, 1, 0, 1, Q("7 mm")),
])
revolution21 = body25.newObject("PartDesign::Revolution", "Revolution020")
revolution21.Profile = sketch21
revolution21.ReferenceAxis = (sketch21, ["Axis0"])
revolution21.Angle = 360
doc.recompute()

boolean15 = body25.newObject("PartDesign::Boolean", "Boolean014")
boolean15.Type = "Fuse"
boolean15.addObjects([body20])
doc.recompute()

boolean16 = body25.newObject("PartDesign::Boolean", "Boolean015")
boolean16.Type = "Fuse"
boolean16.addObjects([body21])
doc.recompute()

boolean17 = body25.newObject("PartDesign::Boolean", "Boolean016")
boolean17.Type = "Fuse"
boolean17.addObjects([body22])
doc.recompute()

boolean18 = body25.newObject("PartDesign::Boolean", "Boolean017")
boolean18.Type = "Fuse"
boolean18.addObjects([body23])
doc.recompute()

boolean19 = body25.newObject("PartDesign::Boolean", "Boolean018")
boolean19.Type = "Fuse"
boolean19.addObjects([body24])
body26 = doc.addObject("PartDesign::Body", "Body025")
body26.AllowCompound = True
doc.recompute()

body25.Placement = App.Placement(V(0, 10.5, 0), App.Rotation(V(0, 0, 1), 0))
boolean20 = body26.newObject("PartDesign::Boolean", "Boolean019")
boolean20.Type = "Fuse"
boolean20.addObjects([body25])
doc.recompute()

boolean21 = body26.newObject("PartDesign::Boolean", "Boolean020")
boolean21.Type = "Fuse"
boolean21.addObjects([body6])
doc.recompute()

boolean22 = body26.newObject("PartDesign::Boolean", "Boolean021")
boolean22.Type = "Fuse"
boolean22.addObjects([body7])
doc.recompute()

boolean23 = body26.newObject("PartDesign::Boolean", "Boolean022")
boolean23.Type = "Fuse"
boolean23.addObjects([body11])
doc.recompute()

boolean24 = body26.newObject("PartDesign::Boolean", "Boolean023")
boolean24.Type = "Fuse"
boolean24.addObjects([body16])
doc.recompute()

boolean25 = body26.newObject("PartDesign::Boolean", "Boolean024")
boolean25.Type = "Fuse"
boolean25.addObjects([body19])
body27 = doc.addObject("PartDesign::Body", "Body026")

sketch22 = body27.newObject("Sketcher::SketchObject", "Sketch021")
sketch22.AttachmentSupport = (doc.getObject("XZ_Plane026"), [""])
sketch22.MapMode = "FlatFace"
sketch22.AttachmentOffset = App.Placement(V(0, 0, -5), App.Rotation())
sketch22.addGeometry([
    Part.ArcOfCircle(Part.Circle(V(5, 5, 0), V(0, 0, 1), 7), math.radians(-90), math.radians(90)),
    Part.LineSegment(V(5, 12, 0), V(5, -2, 0)),
], False)
sketch22.addGeometry(Part.LineSegment(V(5, -2, 0), V(5, 12, 0)), True)
sketch22.addConstraint([
    Sketcher.Constraint("Coincident", 0, 1, 1, 2),
    Sketcher.Constraint("Coincident", 1, 1, 0, 2),
    Sketcher.Constraint("Vertical", 1),
    Sketcher.Constraint("Vertical", 2),
    Sketcher.Constraint("Coincident", 2, 1, 0, 1),
    Sketcher.Constraint("Equal", 1, 2),
    Sketcher.Constraint("Radius", 0, Q("7 mm")),
    Sketcher.Constraint("DistanceX", -1, 1, 0, 3, Q("5 mm")),
    Sketcher.Constraint("DistanceY", -1, 1, 0, 3, Q("5 mm")),
    Sketcher.Constraint("DistanceX", -1, 1, 0, 1, Q("5 mm")),
])
revolution22 = body27.newObject("PartDesign::Revolution", "Revolution021")
revolution22.Profile = sketch22
revolution22.ReferenceAxis = (sketch22, ["Axis0"])
revolution22.Angle = 360
body28 = doc.addObject("PartDesign::Body", "Body027")

sketch23 = body28.newObject("Sketcher::SketchObject", "Sketch022")
sketch23.AttachmentSupport = (doc.getObject("XY_Plane027"), [""])
sketch23.MapMode = "FlatFace"
sketch23.addGeometry([
    Part.LineSegment(V(0, 10, 0), V(0, 0, 0)),
    Part.LineSegment(V(0, 0, 0), V(10, 0, 0)),
    Part.LineSegment(V(10, 0, 0), V(10, 10, 0)),
    Part.LineSegment(V(10, 10, 0), V(0, 10, 0)),
], False)
sketch23.addConstraint([
    Sketcher.Constraint("Coincident", 0, 2, 1, 1),
    Sketcher.Constraint("Coincident", 1, 2, 2, 1),
    Sketcher.Constraint("Coincident", 2, 2, 3, 1),
    Sketcher.Constraint("Coincident", 3, 2, 0, 1),
    Sketcher.Constraint("Vertical", 0),
    Sketcher.Constraint("Horizontal", 1),
    Sketcher.Constraint("Vertical", 2),
    Sketcher.Constraint("Horizontal", 3),
    Sketcher.Constraint("Coincident", 0, 2, -1, 1),
    Sketcher.Constraint("Equal", 3, 0),
    Sketcher.Constraint("DistanceX", 1, 1, 1, 2, Q("10 mm")),
])
pad1 = body28.newObject("PartDesign::Pad", "Pad")
pad1.Profile = sketch23
pad1.Length = 10
doc.recompute()

boolean26 = body28.newObject("PartDesign::Boolean", "Boolean025")
boolean26.Type = "Common"
boolean26.addObjects([body27])
doc.recompute()

boolean27 = body28.newObject("PartDesign::Boolean", "Boolean026")
boolean27.Type = "Cut"
boolean27.addObjects([body26])

doc.recompute()
